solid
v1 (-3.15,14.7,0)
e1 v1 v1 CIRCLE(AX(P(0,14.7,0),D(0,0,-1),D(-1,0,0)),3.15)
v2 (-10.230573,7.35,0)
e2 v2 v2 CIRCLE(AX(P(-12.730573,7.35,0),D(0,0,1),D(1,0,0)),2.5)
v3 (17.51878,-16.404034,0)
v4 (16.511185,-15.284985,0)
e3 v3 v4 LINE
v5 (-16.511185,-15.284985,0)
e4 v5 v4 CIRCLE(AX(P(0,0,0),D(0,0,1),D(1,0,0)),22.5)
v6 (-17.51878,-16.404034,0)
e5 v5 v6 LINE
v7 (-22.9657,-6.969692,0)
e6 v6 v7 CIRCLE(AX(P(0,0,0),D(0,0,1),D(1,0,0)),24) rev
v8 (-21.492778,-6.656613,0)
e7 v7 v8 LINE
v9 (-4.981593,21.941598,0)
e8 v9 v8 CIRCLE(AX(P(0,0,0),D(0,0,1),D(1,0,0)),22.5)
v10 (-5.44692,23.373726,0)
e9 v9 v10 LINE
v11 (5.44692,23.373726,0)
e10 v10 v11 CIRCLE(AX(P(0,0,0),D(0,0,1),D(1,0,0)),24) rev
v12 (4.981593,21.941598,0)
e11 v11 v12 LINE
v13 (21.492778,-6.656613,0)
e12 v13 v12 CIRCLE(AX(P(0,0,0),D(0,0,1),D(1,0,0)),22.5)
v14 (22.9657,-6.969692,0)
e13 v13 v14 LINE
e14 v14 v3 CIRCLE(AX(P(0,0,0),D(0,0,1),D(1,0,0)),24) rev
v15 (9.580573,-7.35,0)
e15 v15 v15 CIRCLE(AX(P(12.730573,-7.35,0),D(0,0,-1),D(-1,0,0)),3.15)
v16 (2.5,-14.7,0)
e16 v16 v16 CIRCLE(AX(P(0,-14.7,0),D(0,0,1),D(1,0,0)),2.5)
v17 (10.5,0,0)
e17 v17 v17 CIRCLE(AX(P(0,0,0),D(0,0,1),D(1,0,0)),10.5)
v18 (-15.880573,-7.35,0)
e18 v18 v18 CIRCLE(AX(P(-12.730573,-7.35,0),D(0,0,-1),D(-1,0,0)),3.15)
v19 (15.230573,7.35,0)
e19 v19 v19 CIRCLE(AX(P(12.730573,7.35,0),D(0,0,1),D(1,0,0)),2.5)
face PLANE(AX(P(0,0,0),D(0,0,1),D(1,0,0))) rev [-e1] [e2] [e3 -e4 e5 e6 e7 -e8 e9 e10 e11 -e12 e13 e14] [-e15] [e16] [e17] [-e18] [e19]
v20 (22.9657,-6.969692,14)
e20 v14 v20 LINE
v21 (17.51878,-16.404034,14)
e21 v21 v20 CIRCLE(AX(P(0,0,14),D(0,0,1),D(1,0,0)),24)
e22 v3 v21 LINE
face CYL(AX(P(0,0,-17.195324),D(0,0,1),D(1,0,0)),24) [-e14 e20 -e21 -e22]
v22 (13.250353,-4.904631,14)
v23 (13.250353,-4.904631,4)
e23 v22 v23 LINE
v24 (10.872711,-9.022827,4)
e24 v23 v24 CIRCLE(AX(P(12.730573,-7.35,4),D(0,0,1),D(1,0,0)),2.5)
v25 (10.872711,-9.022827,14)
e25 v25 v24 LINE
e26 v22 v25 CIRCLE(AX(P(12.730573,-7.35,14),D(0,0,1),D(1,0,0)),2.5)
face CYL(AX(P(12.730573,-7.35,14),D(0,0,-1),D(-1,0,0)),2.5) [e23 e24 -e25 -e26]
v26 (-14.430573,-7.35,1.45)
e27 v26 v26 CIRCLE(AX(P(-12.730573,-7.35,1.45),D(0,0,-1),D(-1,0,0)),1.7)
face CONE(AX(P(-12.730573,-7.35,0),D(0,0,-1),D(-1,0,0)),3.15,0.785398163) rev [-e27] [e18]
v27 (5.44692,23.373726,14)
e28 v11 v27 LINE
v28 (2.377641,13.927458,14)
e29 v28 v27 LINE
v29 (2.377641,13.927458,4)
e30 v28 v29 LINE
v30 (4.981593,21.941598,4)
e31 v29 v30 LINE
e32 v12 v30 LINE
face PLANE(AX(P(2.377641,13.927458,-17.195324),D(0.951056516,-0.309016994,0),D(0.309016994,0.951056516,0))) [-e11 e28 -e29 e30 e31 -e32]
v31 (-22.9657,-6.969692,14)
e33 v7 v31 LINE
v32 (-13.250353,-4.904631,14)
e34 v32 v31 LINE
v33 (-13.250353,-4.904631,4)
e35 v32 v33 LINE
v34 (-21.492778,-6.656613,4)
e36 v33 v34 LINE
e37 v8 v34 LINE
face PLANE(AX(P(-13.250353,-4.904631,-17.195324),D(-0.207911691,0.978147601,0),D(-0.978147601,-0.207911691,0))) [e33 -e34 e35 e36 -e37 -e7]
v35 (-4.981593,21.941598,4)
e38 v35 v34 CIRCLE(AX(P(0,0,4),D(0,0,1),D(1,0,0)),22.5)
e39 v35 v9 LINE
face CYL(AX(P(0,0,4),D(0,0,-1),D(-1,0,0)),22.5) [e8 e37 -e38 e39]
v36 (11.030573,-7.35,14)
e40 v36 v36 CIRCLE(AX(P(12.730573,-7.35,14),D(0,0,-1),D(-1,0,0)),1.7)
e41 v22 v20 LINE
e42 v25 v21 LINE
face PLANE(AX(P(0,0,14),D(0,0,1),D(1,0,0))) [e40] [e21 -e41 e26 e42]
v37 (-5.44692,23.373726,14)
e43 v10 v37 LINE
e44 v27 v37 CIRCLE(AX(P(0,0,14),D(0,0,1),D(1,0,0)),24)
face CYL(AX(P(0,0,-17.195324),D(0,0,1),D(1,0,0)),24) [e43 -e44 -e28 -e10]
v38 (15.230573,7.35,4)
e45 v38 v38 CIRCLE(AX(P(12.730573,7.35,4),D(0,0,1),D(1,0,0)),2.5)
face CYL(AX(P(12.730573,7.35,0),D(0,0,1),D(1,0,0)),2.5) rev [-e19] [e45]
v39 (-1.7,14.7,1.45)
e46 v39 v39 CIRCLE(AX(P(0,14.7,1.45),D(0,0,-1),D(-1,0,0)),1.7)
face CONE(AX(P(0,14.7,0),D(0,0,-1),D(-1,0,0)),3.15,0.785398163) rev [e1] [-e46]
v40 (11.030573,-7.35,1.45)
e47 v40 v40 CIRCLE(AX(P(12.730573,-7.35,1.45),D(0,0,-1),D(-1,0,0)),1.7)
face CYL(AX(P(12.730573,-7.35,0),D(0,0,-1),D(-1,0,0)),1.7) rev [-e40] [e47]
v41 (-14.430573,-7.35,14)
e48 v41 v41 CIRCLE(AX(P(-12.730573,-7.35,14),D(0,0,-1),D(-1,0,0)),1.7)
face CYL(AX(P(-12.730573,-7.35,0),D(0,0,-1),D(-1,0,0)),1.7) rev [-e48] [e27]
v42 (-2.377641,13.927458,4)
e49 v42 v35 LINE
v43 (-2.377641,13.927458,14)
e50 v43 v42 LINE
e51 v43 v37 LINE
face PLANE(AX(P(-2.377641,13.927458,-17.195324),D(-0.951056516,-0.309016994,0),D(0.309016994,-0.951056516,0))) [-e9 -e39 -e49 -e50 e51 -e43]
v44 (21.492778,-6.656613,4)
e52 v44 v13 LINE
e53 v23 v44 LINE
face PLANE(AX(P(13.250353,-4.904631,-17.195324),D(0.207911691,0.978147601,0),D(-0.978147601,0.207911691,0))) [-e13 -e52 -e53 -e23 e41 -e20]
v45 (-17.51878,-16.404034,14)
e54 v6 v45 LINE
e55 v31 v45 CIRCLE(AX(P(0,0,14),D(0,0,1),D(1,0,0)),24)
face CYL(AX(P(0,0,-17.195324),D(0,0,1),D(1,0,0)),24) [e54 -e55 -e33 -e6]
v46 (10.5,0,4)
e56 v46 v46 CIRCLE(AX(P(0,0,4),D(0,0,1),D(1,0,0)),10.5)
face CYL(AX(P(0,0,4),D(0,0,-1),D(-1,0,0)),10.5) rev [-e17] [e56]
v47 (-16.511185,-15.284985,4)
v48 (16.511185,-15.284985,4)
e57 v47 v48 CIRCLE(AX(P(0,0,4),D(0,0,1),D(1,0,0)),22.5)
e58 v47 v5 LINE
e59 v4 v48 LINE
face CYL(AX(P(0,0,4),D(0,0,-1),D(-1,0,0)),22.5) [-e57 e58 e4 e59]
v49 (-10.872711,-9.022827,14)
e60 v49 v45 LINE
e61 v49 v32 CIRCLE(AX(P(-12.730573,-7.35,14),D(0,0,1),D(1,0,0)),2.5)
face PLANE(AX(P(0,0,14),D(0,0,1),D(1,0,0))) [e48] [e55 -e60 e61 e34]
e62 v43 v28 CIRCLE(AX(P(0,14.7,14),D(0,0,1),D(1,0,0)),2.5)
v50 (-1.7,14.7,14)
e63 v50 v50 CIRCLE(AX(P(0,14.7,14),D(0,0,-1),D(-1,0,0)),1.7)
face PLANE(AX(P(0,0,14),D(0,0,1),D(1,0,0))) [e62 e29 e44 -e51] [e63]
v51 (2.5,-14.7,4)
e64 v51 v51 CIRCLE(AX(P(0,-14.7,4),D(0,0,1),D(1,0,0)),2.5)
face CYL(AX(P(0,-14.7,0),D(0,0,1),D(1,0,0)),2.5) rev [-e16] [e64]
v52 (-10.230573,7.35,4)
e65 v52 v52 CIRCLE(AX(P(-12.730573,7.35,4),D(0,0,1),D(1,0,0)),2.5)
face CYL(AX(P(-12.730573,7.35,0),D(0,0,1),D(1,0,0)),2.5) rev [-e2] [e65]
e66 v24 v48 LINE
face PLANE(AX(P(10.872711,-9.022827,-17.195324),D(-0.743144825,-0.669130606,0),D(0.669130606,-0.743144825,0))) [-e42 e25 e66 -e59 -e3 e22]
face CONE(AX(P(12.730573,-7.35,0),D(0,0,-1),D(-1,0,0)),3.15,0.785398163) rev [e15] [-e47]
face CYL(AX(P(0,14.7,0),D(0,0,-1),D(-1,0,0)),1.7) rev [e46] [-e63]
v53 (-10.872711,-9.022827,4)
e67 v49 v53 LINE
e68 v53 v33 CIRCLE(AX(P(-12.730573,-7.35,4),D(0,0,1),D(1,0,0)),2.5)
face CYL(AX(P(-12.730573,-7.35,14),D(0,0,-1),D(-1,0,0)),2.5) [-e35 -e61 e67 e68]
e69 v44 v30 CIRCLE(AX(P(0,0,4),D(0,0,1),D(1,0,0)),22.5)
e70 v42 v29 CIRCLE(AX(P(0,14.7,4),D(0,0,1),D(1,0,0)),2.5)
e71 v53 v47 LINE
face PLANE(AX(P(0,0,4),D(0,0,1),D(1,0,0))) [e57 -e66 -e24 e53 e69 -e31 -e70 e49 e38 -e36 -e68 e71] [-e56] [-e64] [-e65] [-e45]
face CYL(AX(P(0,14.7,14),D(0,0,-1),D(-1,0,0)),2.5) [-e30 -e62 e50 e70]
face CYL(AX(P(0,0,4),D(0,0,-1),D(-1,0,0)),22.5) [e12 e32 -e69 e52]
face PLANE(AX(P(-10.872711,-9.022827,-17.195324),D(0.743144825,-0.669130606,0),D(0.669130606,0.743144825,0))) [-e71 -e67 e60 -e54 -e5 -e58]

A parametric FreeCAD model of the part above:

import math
import FreeCAD as App
import Part
import Sketcher
Q = App.Units.Quantity

doc = App.newDocument("Part")
body = doc.addObject("PartDesign::Body", "Body")

sketch1 = doc.addObject("Sketcher::SketchObject", "Sketch")
body.addObject(sketch1)
sketch1.AttachmentSupport = (doc.XY_Plane, [""])
sketch1.MapMode = "FlatFace"
sketch1.addGeometry([
    Part.Circle(App.Vector(0, 0, 0), App.Vector(0, 0, 1), 22.5),
    Part.Circle(App.Vector(-12.7, -7.3, 0), App.Vector(0, 0, 1), 1.5),
    Part.Circle(App.Vector(12.7, -7.3, 0), App.Vector(0, 0, 1), 1.5),
    Part.Circle(App.Vector(0, 0, 0), App.Vector(0, 0, 1), 10.5),
    Part.Circle(App.Vector(0, 14.7, 0), App.Vector(0, 0, 1), 1.5),
], False)
sketch1.addConstraint([
    Sketcher.Constraint("Coincident", 0, 3, -1, 1),
    Sketcher.Constraint("Coincident", 3, 3, -1, 1),
    Sketcher.Constraint("Equal", 1, 2),
    Sketcher.Constraint("Equal", 2, 4),
    Sketcher.Constraint("Symmetric", 1, 3, 2, 3, -2),
    Sketcher.Constraint("PointOnObject", 4, 3, -2),
    Sketcher.Constraint("Diameter", 0, 45.0),
    Sketcher.Constraint("Diameter", 1, 3.0),
    Sketcher.Constraint("Diameter", 3, 21.0),
    Sketcher.Constraint("DistanceY", -1, 1, 4, 3, 14.7),
    Sketcher.Constraint("DistanceY", 1, 3, -1, 1, 7.35),
    Sketcher.Constraint("DistanceX", 1, 3, -1, 1, 12.730573),
])
pad1 = doc.addObject("PartDesign::Pad", "Pad")
body.addObject(pad1)
pad1.Profile = sketch1
pad1.Length = 4

sketch2 = doc.addObject("Sketcher::SketchObject", "Sketch001")
body.addObject(sketch2)
sketch2.AttachmentSupport = (doc.XY_Plane, [""])
sketch2.MapMode = "FlatFace"
sketch2.addGeometry([
    Part.Circle(App.Vector(0, -14.7, 0), App.Vector(0, 0, 1), 2.5),
    Part.Circle(App.Vector(-12.7, 7.3, 0), App.Vector(0, 0, 1), 2.5),
    Part.Circle(App.Vector(12.7, 7.3, 0), App.Vector(0, 0, 1), 2.5),
    Part.LineSegment(App.Vector(-17.5, -16.4, 0), App.Vector(-10.9, -9, 0)),
    Part.ArcOfCircle(Part.Circle(App.Vector(-12.7, -7.3, 0), App.Vector(0, 0, 1), 2.5), math.radians(-42), math.radians(102)),
    Part.LineSegment(App.Vector(-13.3, -4.9, 0), App.Vector(-23, -7, 0)),
    Part.ArcOfCircle(Part.Circle(App.Vector(0, 0, 0), App.Vector(0, 0, 1), 24), math.radians(-163), math.radians(-137)),
    Part.Circle(App.Vector(-12.7, -7.3, 0), App.Vector(0, 0, 1), 1.5),
    Part.LineSegment(App.Vector(2.4, 13.9, 0), App.Vector(5.4, 23.4, 0)),
    Part.ArcOfCircle(Part.Circle(App.Vector(0, 0, 0), App.Vector(0, 0, 1), 24), math.radians(77), math.radians(103)),
    Part.LineSegment(App.Vector(-5.4, 23.4, 0), App.Vector(-2.4, 13.9, 0)),
    Part.ArcOfCircle(Part.Circle(App.Vector(0, 14.7, 0), App.Vector(0, 0, 1), 2.5), math.radians(-162), math.radians(-18)),
    Part.Circle(App.Vector(0, 14.7, 0), App.Vector(0, 0, 1), 1.5),
    Part.LineSegment(App.Vector(10.9, -9, 0), App.Vector(17.5, -16.4, 0)),
    Part.ArcOfCircle(Part.Circle(App.Vector(0, 0, 0), App.Vector(0, 0, 1), 24), math.radians(-43), math.radians(-17)),
    Part.LineSegment(App.Vector(23, -7, 0), App.Vector(13.3, -4.9, 0)),
    Part.ArcOfCircle(Part.Circle(App.Vector(12.7, -7.3, 0), App.Vector(0, 0, 1), 2.5), math.radians(78), math.radians(222)),
    Part.Circle(App.Vector(12.7, -7.3, 0), App.Vector(0, 0, 1), 1.5),
], False)
sketch2.addConstraint([
    Sketcher.Constraint("Tangent", 3, 2, 4, 1),
    Sketcher.Constraint("Tangent", 4, 2, 5, 1),
    Sketcher.Constraint("Coincident", 5, 2, 6, 1),
    Sketcher.Constraint("Coincident", 6, 2, 3, 1),
    Sketcher.Constraint("Coincident", 8, 2, 9, 1),
    Sketcher.Constraint("Coincident", 9, 2, 10, 1),
    Sketcher.Constraint("Tangent", 10, 2, 11, 1),
    Sketcher.Constraint("Tangent", 11, 2, 8, 1),
    Sketcher.Constraint("Coincident", 13, 2, 14, 1),
    Sketcher.Constraint("Coincident", 14, 2, 15, 1),
    Sketcher.Constraint("Tangent", 15, 2, 16, 1),
    Sketcher.Constraint("Tangent", 16, 2, 13, 1),
    Sketcher.Constraint("Coincident", 6, 3, -1, 1),
    Sketcher.Constraint("Coincident", 9, 3, -1, 1),
    Sketcher.Constraint("Coincident", 14, 3, -1, 1),
    Sketcher.Constraint("Coincident", 7, 3, 4, 3),
    Sketcher.Constraint("Coincident", 12, 3, 11, 3),
    Sketcher.Constraint("Coincident", 17, 3, 16, 3),
    Sketcher.Constraint("Equal", 0, 1),
    Sketcher.Constraint("Equal", 1, 2),
    Sketcher.Constraint("Equal", 2, 4),
    Sketcher.Constraint("Equal", 6, 9),
    Sketcher.Constraint("Equal", 4, 11),
    Sketcher.Constraint("Equal", 7, 12),
    Sketcher.Constraint("Equal", 9, 14),
    Sketcher.Constraint("Equal", 11, 16),
    Sketcher.Constraint("Equal", 12, 17),
    Sketcher.Constraint("Symmetric", 2, 3, 4, 3, -1, 1),
    Sketcher.Constraint("Symmetric", 0, 3, 11, 3, -1, 1),
    Sketcher.Constraint("Symmetric", 1, 3, 16, 3, -1, 1),
    Sketcher.Constraint("Symmetric", 1, 3, 2, 3, -2),
    Sketcher.Constraint("Symmetric", 10, 2, 11, 2, -2),
    Sketcher.Constraint("Horizontal", 6, 2, 13, 2),
    Sketcher.Constraint("Horizontal", 5, 2, 14, 2),
    Sketcher.Constraint("Equal", 3, 5),
    Sketcher.Constraint("Equal", 5, 8),
    Sketcher.Constraint("Diameter", 0, 5.0),
    Sketcher.Constraint("Diameter", 7, 3.0),
    Sketcher.Constraint("Radius", 6, 24.0),
    Sketcher.Constraint("Angle", 3, Q("48 deg")),
    Sketcher.Constraint("Angle", 5, Q("-168 deg")),
    Sketcher.Constraint("Angle", 8, Q("72 deg")),
    Sketcher.Constraint("DistanceY", 0, 3, -1, 1, 14.7),
])
pad2 = doc.addObject("PartDesign::Pad", "Pad001")
body.addObject(pad2)
pad2.Profile = sketch2
pad2.Length = 4

sketch3 = doc.addObject("Sketcher::SketchObject", "Sketch002")
body.addObject(sketch3)
sketch3.AttachmentSupport = (doc.XY_Plane, [""])
sketch3.MapMode = "FlatFace"
sketch3.AttachmentOffset = App.Placement(App.Vector(0, 0, 4), App.Rotation())
sketch3.addGeometry([
    Part.LineSegment(App.Vector(-5.4, 23.4, 0), App.Vector(-5, 21.9, 0)),
    Part.LineSegment(App.Vector(-5, 21.9, 0), App.Vector(-2.4, 13.9, 0)),
    Part.ArcOfCircle(Part.Circle(App.Vector(0, 14.7, 0), App.Vector(0, 0, 1), 2.5), math.radians(-162), math.radians(-18)),
    Part.LineSegment(App.Vector(2.4, 13.9, 0), App.Vector(5, 21.9, 0)),
    Part.LineSegment(App.Vector(5, 21.9, 0), App.Vector(5.4, 23.4, 0)),
    Part.ArcOfCircle(Part.Circle(App.Vector(0, 0, 0), App.Vector(0, 0, 1), 24), math.radians(77), math.radians(103)),
    Part.Circle(App.Vector(0, 14.7, 0), App.Vector(0, 0, 1), 1.5),
    Part.LineSegment(App.Vector(-17.5, -16.4, 0), App.Vector(-16.5, -15.3, 0)),
    Part.LineSegment(App.Vector(-16.5, -15.3, 0), App.Vector(-10.9, -9, 0)),
    Part.ArcOfCircle(Part.Circle(App.Vector(-12.7, -7.3, 0), App.Vector(0, 0, 1), 2.5), math.radians(-42), math.radians(102)),
    Part.LineSegment(App.Vector(-13.3, -4.9, 0), App.Vector(-21.5, -6.7, 0)),
    Part.LineSegment(App.Vector(-21.5, -6.7, 0), App.Vector(-23, -7, 0)),
    Part.ArcOfCircle(Part.Circle(App.Vector(0, 0, 0), App.Vector(0, 0, 1), 24), math.radians(-163), math.radians(-137)),
    Part.Circle(App.Vector(-12.7, -7.3, 0), App.Vector(0, 0, 1), 1.5),
    Part.LineSegment(App.Vector(10.9, -9, 0), App.Vector(16.5, -15.3, 0)),
    Part.LineSegment(App.Vector(16.5, -15.3, 0), App.Vector(17.5, -16.4, 0)),
    Part.ArcOfCircle(Part.Circle(App.Vector(0, 0, 0), App.Vector(0, 0, 1), 24), math.radians(-43), math.radians(-17)),
    Part.LineSegment(App.Vector(23, -7, 0), App.Vector(21.5, -6.7, 0)),
    Part.LineSegment(App.Vector(21.5, -6.7, 0), App.Vector(13.3, -4.9, 0)),
    Part.ArcOfCircle(Part.Circle(App.Vector(12.7, -7.3, 0), App.Vector(0, 0, 1), 2.5), math.radians(78), math.radians(222)),
    Part.Circle(App.Vector(12.7, -7.3, 0), App.Vector(0, 0, 1), 1.5),
], False)
sketch3.addConstraint([
    Sketcher.Constraint("Coincident", 0, 2, 1, 1),
    Sketcher.Constraint("Tangent", 1, 2, 2, 1),
    Sketcher.Constraint("Tangent", 2, 2, 3, 1),
    Sketcher.Constraint("Coincident", 3, 2, 4, 1),
    Sketcher.Constraint("Coincident", 4, 2, 5, 1),
    Sketcher.Constraint("Coincident", 5, 2, 0, 1),
    Sketcher.Constraint("Coincident", 7, 2, 8, 1),
    Sketcher.Constraint("Tangent", 8, 2, 9, 1),
    Sketcher.Constraint("Tangent", 9, 2, 10, 1),
    Sketcher.Constraint("Coincident", 10, 2, 11, 1),
    Sketcher.Constraint("Coincident", 11, 2, 12, 1),
    Sketcher.Constraint("Coincident", 12, 2, 7, 1),
    Sketcher.Constraint("Coincident", 14, 2, 15, 1),
    Sketcher.Constraint("Coincident", 15, 2, 16, 1),
    Sketcher.Constraint("Coincident", 16, 2, 17, 1),
    Sketcher.Constraint("Coincident", 17, 2, 18, 1),
    Sketcher.Constraint("Tangent", 18, 2, 19, 1),
    Sketcher.Constraint("Tangent", 19, 2, 14, 1),
    Sketcher.Constraint("Coincident", 5, 3, -1, 1),
    Sketcher.Constraint("Coincident", 12, 3, -1, 1),
    Sketcher.Constraint("Coincident", 16, 3, -1, 1),
    Sketcher.Constraint("Coincident", 6, 3, 2, 3),
    Sketcher.Constraint("Coincident", 13, 3, 9, 3),
    Sketcher.Constraint("Coincident", 20, 3, 19, 3),
    Sketcher.Constraint("Equal", 2, 9),
    Sketcher.Constraint("Equal", 5, 12),
    Sketcher.Constraint("Equal", 6, 13),
    Sketcher.Constraint("Equal", 12, 16),
    Sketcher.Constraint("Equal", 9, 19),
    Sketcher.Constraint("Equal", 13, 20),
    Sketcher.Constraint("Symmetric", 9, 3, 19, 3, -2),
    Sketcher.Constraint("Symmetric", 1, 2, 2, 2, -2),
    Sketcher.Constraint("Symmetric", 7, 2, 14, 2, -2),
    Sketcher.Constraint("Symmetric", 10, 2, 17, 2, -2),
    Sketcher.Constraint("Parallel", 0, 1),
    Sketcher.Constraint("Parallel", 3, 4),
    Sketcher.Constraint("Parallel", 7, 8),
    Sketcher.Constraint("Parallel", 10, 11),
    Sketcher.Constraint("Parallel", 14, 15),
    Sketcher.Constraint("Parallel", 17, 18),
    Sketcher.Constraint("Horizontal", 0, 2, 3, 2),
    Sketcher.Constraint("Equal", 4, 7),
    Sketcher.Constraint("Equal", 3, 8),
    Sketcher.Constraint("Equal", 8, 10),
    Sketcher.Constraint("Equal", 7, 11),
    Sketcher.Constraint("Diameter", 6, 3.0),
    Sketcher.Constraint("Radius", 5, 24.0),
    Sketcher.Constraint("Radius", 2, 2.5),
    Sketcher.Constraint("Angle", 0, Q("-72 deg")),
    Sketcher.Constraint("Angle", 7, Q("48 deg")),
    Sketcher.Constraint("Angle", 10, Q("-168 deg")),
    Sketcher.Constraint("DistanceY", -1, 1, 2, 3, 14.7),
    Sketcher.Constraint("DistanceY", -1, 1, 0, 2, 21.941598),
])
pad3 = doc.addObject("PartDesign::Pad", "Pad002")
body.addObject(pad3)
pad3.Profile = sketch3
pad3.Length = 10

sketch4 = doc.addObject("Sketcher::SketchObject", "Sketch003")
body.addObject(sketch4)
sketch4.AttachmentSupport = (doc.XY_Plane, [""])
sketch4.MapMode = "FlatFace"
sketch4.AttachmentOffset = App.Placement(App.Vector(0, 0, 4), App.Rotation())
sketch4.addGeometry([
    Part.Circle(App.Vector(0, -14.7, 0), App.Vector(0, 0, 1), 2.5),
    Part.Circle(App.Vector(-12.7, 7.3, 0), App.Vector(0, 0, 1), 2.5),
    Part.Circle(App.Vector(12.7, 7.3, 0), App.Vector(0, 0, 1), 2.5),
], False)
sketch4.addConstraint([
    Sketcher.Constraint("Equal", 0, 1),
    Sketcher.Constraint("Equal", 1, 2),
    Sketcher.Constraint("Symmetric", 1, 3, 2, 3, -2),
    Sketcher.Constraint("PointOnObject", 0, 3, -2),
    Sketcher.Constraint("Diameter", 0, 5.0),
    Sketcher.Constraint("DistanceY", 0, 3, -1, 1, 14.7),
    Sketcher.Constraint("DistanceY", -1, 1, 1, 3, 7.35),
    Sketcher.Constraint("DistanceX", 1, 3, -1, 1, 12.730573),
])
pocket1 = doc.addObject("PartDesign::Pocket", "Pocket")
body.addObject(pocket1)
pocket1.Profile = sketch4
pocket1.Type = "ThroughAll"
pocket1.Midplane = True

sketch5 = doc.addObject("Sketcher::SketchObject", "Sketch004")
body.addObject(sketch5)
sketch5.AttachmentSupport = (doc.XY_Plane, [""])
sketch5.MapMode = "FlatFace"
sketch5.addGeometry([
    Part.Circle(App.Vector(-12.7, -7.3, 0), App.Vector(0, 0, 1), 1.7),
    Part.Circle(App.Vector(0, 14.7, 0), App.Vector(0, 0, 1), 1.7),
    Part.Circle(App.Vector(12.7, -7.3, 0), App.Vector(0, 0, 1), 1.7),
], False)
sketch5.addConstraint([
    Sketcher.Constraint("Equal", 0, 1),
    Sketcher.Constraint("Equal", 1, 2),
    Sketcher.Constraint("Symmetric", 0, 3, 2, 3, -2),
    Sketcher.Constraint("PointOnObject", 1, 3, -2),
    Sketcher.Constraint("Diameter", 0, 3.4),
    Sketcher.Constraint("DistanceY", -1, 1, 1, 3, 14.7),
    Sketcher.Constraint("DistanceY", 0, 3, -1, 1, 7.35),
    Sketcher.Constraint("DistanceX", 0, 3, -1, 1, 12.730573),
])
doc.recompute()
hole = doc.addObject("PartDesign::Hole", "Hole")
body.addObject(hole)
hole.Profile = sketch5
hole.ThreadType = "None"
hole.Diameter = 3.4
hole.DepthType = "ThroughAll"
hole.HoleCutType = "Countersink"
hole.HoleCutDiameter = 6.3
hole.HoleCutCountersinkAngle = 90
hole.Reversed = True

doc.recompute()
